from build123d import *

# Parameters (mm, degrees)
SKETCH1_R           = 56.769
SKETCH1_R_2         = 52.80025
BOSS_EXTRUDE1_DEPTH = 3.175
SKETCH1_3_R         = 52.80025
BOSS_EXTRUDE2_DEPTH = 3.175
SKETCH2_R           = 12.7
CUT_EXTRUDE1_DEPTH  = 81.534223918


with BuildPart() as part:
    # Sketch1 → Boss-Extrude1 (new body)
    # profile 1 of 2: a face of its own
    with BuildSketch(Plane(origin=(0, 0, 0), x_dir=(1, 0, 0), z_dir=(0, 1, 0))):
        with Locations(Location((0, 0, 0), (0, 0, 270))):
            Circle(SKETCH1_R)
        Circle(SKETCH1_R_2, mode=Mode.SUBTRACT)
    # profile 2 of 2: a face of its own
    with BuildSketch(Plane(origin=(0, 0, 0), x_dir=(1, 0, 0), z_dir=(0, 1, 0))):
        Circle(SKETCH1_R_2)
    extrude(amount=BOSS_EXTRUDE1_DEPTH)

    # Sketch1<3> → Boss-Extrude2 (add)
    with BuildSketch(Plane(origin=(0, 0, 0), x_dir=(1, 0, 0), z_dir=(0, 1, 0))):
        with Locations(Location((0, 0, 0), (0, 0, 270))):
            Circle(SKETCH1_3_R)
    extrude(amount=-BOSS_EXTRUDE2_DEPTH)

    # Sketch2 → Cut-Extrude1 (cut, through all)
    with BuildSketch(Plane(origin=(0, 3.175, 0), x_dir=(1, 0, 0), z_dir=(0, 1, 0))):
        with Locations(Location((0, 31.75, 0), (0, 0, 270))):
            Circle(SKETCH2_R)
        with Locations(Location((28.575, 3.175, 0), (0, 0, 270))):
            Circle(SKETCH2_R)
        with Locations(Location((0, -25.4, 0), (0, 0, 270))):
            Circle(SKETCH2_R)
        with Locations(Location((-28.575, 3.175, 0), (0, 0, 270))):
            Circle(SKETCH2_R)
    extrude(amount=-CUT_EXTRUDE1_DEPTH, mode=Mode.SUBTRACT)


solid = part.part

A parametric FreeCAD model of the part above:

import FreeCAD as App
import Part
import Sketcher

V = App.Vector
Q = App.Units.Quantity

doc = App.newDocument("Part")
body = doc.addObject("PartDesign::Body", "Body")

# Sketch on XZ plane
sketch1 = doc.addObject("Sketcher::SketchObject", "Sketch")
body.addObject(sketch1)
sketch1.AttachmentSupport = (doc.XZ_Plane, [""])
sketch1.MapMode = "FlatFace"
sketch1.addGeometry(Part.Circle(V(0, 0, 0), V(0, 0, 1), 57), False)
sketch1.addConstraint(Sketcher.Constraint("Coincident", 0, 3, -1, 1))
sketch1.addConstraint(Sketcher.Constraint("Diameter", 0, Q("4.47 in")))
pad1 = doc.addObject("PartDesign::Pad", "Pad")
body.addObject(pad1)
pad1.Profile = sketch1
pad1.Length = Q("0.125 in")
pad1.Reversed = True

# Sketch on XZ plane
sketch2 = doc.addObject("Sketcher::SketchObject", "Sketch001")
body.addObject(sketch2)
sketch2.AttachmentSupport = (doc.XZ_Plane, [""])
sketch2.MapMode = "FlatFace"
sketch2.addGeometry(Part.Circle(V(0, 0, 0), V(0, 0, 1), 53), False)
sketch2.addConstraint(Sketcher.Constraint("Coincident", 0, 3, -1, 1))
sketch2.addConstraint(Sketcher.Constraint("Diameter", 0, Q("4.1575 in")))
pad2 = doc.addObject("PartDesign::Pad", "Pad001")
body.addObject(pad2)
pad2.Profile = sketch2
pad2.Length = Q("0.125 in")

# Sketch on XZ plane
sketch3 = doc.addObject("Sketcher::SketchObject", "Sketch002")
body.addObject(sketch3)
sketch3.AttachmentSupport = (doc.XZ_Plane, [""])
sketch3.MapMode = "FlatFace"
sketch3.AttachmentOffset = App.Placement(V(0, 0, -0.125 * 25.4), App.Rotation())
sketch3.addGeometry(Part.Circle(V(0, -32, 0), V(0, 0, 1), 13), False)
sketch3.addGeometry(Part.Circle(V(29, -3, 0), V(0, 0, 1), 13), False)
sketch3.addGeometry(Part.Circle(V(0, 25, 0), V(0, 0, 1), 13), False)
sketch3.addGeometry(Part.Circle(V(-29, -3, 0), V(0, 0, 1), 13), False)
sketch3.addConstraint(Sketcher.Constraint("Equal", 0, 1))
sketch3.addConstraint(Sketcher.Constraint("Equal", 1, 2))
sketch3.addConstraint(Sketcher.Constraint("Equal", 2, 3))
sketch3.addConstraint(Sketcher.Constraint("Symmetric", 1, 3, 3, 3, -2))
sketch3.addConstraint(Sketcher.Constraint("PointOnObject", 0, 3, -2))
sketch3.addConstraint(Sketcher.Constraint("PointOnObject", 2, 3, -2))
sketch3.addConstraint(Sketcher.Constraint("Diameter", 0, Q("1 in")))
sketch3.addConstraint(Sketcher.Constraint("DistanceY", -1, 1, 2, 3, Q("1 in")))
sketch3.addConstraint(Sketcher.Constraint("DistanceY", 0, 3, -1, 1, Q("1.25 in")))
sketch3.addConstraint(Sketcher.Constraint("DistanceX", 3, 3, 1, 3, Q("2.25 in")))
sketch3.addConstraint(Sketcher.Constraint("DistanceY", 1, 3, -1, 1, Q("0.125 in")))
pocket1 = doc.addObject("PartDesign::Pocket", "Pocket")
body.addObject(pocket1)
pocket1.Profile = sketch3
pocket1.Type = "ThroughAll"
pocket1.Reversed = True

doc.recompute()
